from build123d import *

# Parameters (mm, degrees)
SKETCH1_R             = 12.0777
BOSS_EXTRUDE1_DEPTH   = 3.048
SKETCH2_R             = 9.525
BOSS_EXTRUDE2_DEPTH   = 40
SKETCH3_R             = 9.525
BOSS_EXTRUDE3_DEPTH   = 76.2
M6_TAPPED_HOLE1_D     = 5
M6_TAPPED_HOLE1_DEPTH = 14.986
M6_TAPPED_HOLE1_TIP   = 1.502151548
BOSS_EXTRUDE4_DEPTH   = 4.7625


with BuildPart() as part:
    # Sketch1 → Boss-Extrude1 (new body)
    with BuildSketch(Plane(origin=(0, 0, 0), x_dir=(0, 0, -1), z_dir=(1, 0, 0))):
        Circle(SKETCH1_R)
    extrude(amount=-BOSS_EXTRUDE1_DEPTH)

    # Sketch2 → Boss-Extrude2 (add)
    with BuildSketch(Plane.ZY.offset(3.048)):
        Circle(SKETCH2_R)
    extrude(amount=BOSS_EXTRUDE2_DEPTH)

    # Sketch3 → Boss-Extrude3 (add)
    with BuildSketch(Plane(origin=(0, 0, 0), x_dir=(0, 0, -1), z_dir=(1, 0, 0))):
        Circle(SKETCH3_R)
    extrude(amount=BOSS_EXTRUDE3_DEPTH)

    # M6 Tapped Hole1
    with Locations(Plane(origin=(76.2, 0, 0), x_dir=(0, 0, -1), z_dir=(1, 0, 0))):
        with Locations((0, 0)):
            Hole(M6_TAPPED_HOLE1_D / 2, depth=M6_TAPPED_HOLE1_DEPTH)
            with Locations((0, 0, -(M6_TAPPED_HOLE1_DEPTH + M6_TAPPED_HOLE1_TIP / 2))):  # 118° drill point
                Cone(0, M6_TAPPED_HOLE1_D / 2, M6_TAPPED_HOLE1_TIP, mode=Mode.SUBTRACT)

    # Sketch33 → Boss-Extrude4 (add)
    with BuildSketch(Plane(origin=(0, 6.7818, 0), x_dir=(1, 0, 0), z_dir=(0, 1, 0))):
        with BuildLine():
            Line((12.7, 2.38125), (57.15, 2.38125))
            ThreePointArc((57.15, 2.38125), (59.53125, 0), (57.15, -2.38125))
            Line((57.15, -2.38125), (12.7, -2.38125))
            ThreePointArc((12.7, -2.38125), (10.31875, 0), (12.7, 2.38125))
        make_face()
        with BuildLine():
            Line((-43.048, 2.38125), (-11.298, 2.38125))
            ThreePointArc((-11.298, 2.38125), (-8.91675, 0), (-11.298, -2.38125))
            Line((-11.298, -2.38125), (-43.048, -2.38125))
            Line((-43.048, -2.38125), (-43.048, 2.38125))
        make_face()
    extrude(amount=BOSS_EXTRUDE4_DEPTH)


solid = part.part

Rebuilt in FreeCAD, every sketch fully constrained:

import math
import FreeCAD as App
import Part
import Sketcher

V = App.Vector
Q = App.Units.Quantity

doc = App.newDocument("Part")
body = doc.addObject("PartDesign::Body", "Body")

# Sketch on YZ plane
sketch1 = doc.addObject("Sketcher::SketchObject", "Sketch")
body.addObject(sketch1)
sketch1.AttachmentSupport = (doc.YZ_Plane, [""])
sketch1.MapMode = "FlatFace"
sketch1.addGeometry(Part.Circle(V(0, 0, 0), V(0, 0, 1), 12), False)
sketch1.addConstraint([
    Sketcher.Constraint("Coincident", 0, 3, -1, 1),
    Sketcher.Constraint("Diameter", 0, Q("0.951 in")),
])
pad1 = doc.addObject("PartDesign::Pad", "Pad")
body.addObject(pad1)
pad1.Profile = sketch1
pad1.Length = Q("0.12 in")
pad1.Reversed = True

# Sketch on YZ plane
sketch2 = doc.addObject("Sketcher::SketchObject", "Sketch001")
body.addObject(sketch2)
sketch2.AttachmentSupport = (doc.YZ_Plane, [""])
sketch2.MapMode = "FlatFace"
sketch2.AttachmentOffset = App.Placement(V(0, 0, -0.12 * 25.4), App.Rotation())
sketch2.addGeometry(Part.Circle(V(0, 0, 0), V(0, 0, 1), 10), False)
sketch2.addConstraint([
    Sketcher.Constraint("Coincident", 0, 3, -1, 1),
    Sketcher.Constraint("Diameter", 0, Q("0.75 in")),
])
pad2 = doc.addObject("PartDesign::Pad", "Pad001")
body.addObject(pad2)
pad2.Profile = sketch2
pad2.Length = 40
pad2.Reversed = True

# Sketch on YZ plane
sketch3 = doc.addObject("Sketcher::SketchObject", "Sketch002")
body.addObject(sketch3)
sketch3.AttachmentSupport = (doc.YZ_Plane, [""])
sketch3.MapMode = "FlatFace"
sketch3.addGeometry(Part.Circle(V(0, 0, 0), V(0, 0, 1), 10), False)
sketch3.addConstraint([
    Sketcher.Constraint("Coincident", 0, 3, -1, 1),
    Sketcher.Constraint("Diameter", 0, Q("0.75 in")),
])
pad3 = doc.addObject("PartDesign::Pad", "Pad002")
body.addObject(pad3)
pad3.Profile = sketch3
pad3.Length = Q("3 in")

# Sketch on YZ plane
sketch4 = doc.addObject("Sketcher::SketchObject", "Sketch003")
body.addObject(sketch4)
sketch4.AttachmentSupport = (doc.YZ_Plane, [""])
sketch4.MapMode = "FlatFace"
sketch4.AttachmentOffset = App.Placement(V(0, 0, 3 * 25.4), App.Rotation())
sketch4.addGeometry(Part.Circle(V(0, 0, 0), V(0, 0, 1), 2.5), False)
sketch4.addConstraint([
    Sketcher.Constraint("Coincident", 0, 3, -1, 1),
    Sketcher.Constraint("Diameter", 0, 5.0),
])
doc.recompute()
hole = doc.addObject("PartDesign::Hole", "Hole")
body.addObject(hole)
hole.Profile = sketch4
hole.ThreadType = "None"
hole.Diameter = 5
hole.DepthType = "Dimension"
hole.Depth = Q("0.59 in")
hole.DrillPoint = "Angled"
hole.DrillPointAngle = 118

# Sketch on XZ plane
sketch5 = doc.addObject("Sketcher::SketchObject", "Sketch004")
body.addObject(sketch5)
sketch5.AttachmentSupport = (doc.XZ_Plane, [""])
sketch5.MapMode = "FlatFace"
sketch5.AttachmentOffset = App.Placement(V(0, 0, -0.267 * 25.4), App.Rotation())
sketch5.addGeometry([
    Part.LineSegment(V(57.1, -2.4, 0), V(12.7, -2.4, 0)),  # 0
    Part.ArcOfCircle(Part.Circle(V(12.7, 0, 0), V(0, 0, 1), 2.4), math.radians(90), math.radians(270)),  # 1
    Part.LineSegment(V(12.7, 2.4, 0), V(57.1, 2.4, 0)),  # 2
    Part.ArcOfCircle(Part.Circle(V(57.1, 0, 0), V(0, 0, 1), 2.4), math.radians(-90), math.radians(90)),  # 3
    Part.LineSegment(V(-11.3, -2.4, 0), V(-43, -2.4, 0)),  # 4
    Part.LineSegment(V(-43, -2.4, 0), V(-43, 2.4, 0)),  # 5
    Part.LineSegment(V(-43, 2.4, 0), V(-11.3, 2.4, 0)),  # 6
    Part.ArcOfCircle(Part.Circle(V(-11.3, 0, 0), V(0, 0, 1), 2.4), math.radians(-90), math.radians(90)),  # 7
], False)
sketch5.addConstraint([
    Sketcher.Constraint("Tangent", 0, 2, 1, 2),
    Sketcher.Constraint("Tangent", 1, 1, 2, 1),
    Sketcher.Constraint("Tangent", 2, 2, 3, 2),
    Sketcher.Constraint("Tangent", 3, 1, 0, 1),
    Sketcher.Constraint("Coincident", 4, 2, 5, 1),
    Sketcher.Constraint("Coincident", 5, 2, 6, 1),
    Sketcher.Constraint("Tangent", 6, 2, 7, 2),
    Sketcher.Constraint("Tangent", 7, 1, 4, 1),
    Sketcher.Constraint("Horizontal", 0),
    Sketcher.Constraint("Horizontal", 2),
    Sketcher.Constraint("Horizontal", 4),
    Sketcher.Constraint("Vertical", 5),
    Sketcher.Constraint("Horizontal", 6),
    Sketcher.Constraint("Equal", 3, 7),
    Sketcher.Constraint("PointOnObject", 1, 3, -1),
    Sketcher.Constraint("PointOnObject", 7, 3, -1),
    Sketcher.Constraint("Radius", 1, Q("0.09375 in")),
    Sketcher.Constraint("DistanceX", 0, 2, 0, 1, Q("1.75 in")),
    Sketcher.Constraint("DistanceX", 4, 2, 4, 1, Q("1.25 in")),
    Sketcher.Constraint("DistanceX", -1, 1, 1, 3, Q("0.5 in")),
    Sketcher.Constraint("DistanceX", 7, 3, -1, 1, 11.298),
])
pad4 = doc.addObject("PartDesign::Pad", "Pad003")
body.addObject(pad4)
pad4.Profile = sketch5
pad4.Length = Q("0.1875 in")
pad4.Reversed = True

doc.recompute()
